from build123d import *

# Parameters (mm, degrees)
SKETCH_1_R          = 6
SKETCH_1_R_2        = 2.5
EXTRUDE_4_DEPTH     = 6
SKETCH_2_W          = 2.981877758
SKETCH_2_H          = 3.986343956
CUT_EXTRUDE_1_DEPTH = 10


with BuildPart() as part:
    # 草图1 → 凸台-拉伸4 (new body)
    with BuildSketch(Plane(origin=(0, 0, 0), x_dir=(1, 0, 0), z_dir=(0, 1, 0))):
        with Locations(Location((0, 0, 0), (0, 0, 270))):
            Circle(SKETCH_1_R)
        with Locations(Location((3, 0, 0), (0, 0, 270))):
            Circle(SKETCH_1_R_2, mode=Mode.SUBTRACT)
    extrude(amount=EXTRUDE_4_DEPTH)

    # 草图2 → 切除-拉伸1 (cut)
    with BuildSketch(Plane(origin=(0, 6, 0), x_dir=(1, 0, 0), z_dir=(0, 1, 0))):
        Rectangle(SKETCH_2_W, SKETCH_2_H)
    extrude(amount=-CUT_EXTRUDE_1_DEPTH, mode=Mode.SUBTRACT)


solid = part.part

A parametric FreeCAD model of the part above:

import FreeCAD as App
import Part
import Sketcher

doc = App.newDocument("Part")
body = doc.addObject("PartDesign::Body", "Body")

# Sketch on XZ plane
sketch1 = doc.addObject("Sketcher::SketchObject", "Sketch")
body.addObject(sketch1)
sketch1.AttachmentSupport = (doc.XZ_Plane, [""])
sketch1.MapMode = "FlatFace"
sketch1.addGeometry([
    Part.Circle(App.Vector(0, 0, 0), App.Vector(0, 0, 1), 6),
    Part.Circle(App.Vector(3, 0, 0), App.Vector(0, 0, 1), 2.5),
], False)
sketch1.addConstraint([
    Sketcher.Constraint("Coincident", 0, 3, -1, 1),
    Sketcher.Constraint("PointOnObject", 1, 3, -1),
    Sketcher.Constraint("Diameter", 0, 12.0),
    Sketcher.Constraint("Diameter", 1, 5.0),
    Sketcher.Constraint("DistanceX", -1, 1, 1, 3, 3.0),
])
pad1 = doc.addObject("PartDesign::Pad", "Pad")
body.addObject(pad1)
pad1.Profile = sketch1
pad1.Length = 6
pad1.Reversed = True

# Sketch on XZ plane
sketch2 = doc.addObject("Sketcher::SketchObject", "Sketch001")
body.addObject(sketch2)
sketch2.AttachmentSupport = (doc.XZ_Plane, [""])
sketch2.MapMode = "FlatFace"
sketch2.AttachmentOffset = App.Placement(App.Vector(0, 0, -6), App.Rotation())
sketch2.addGeometry([
    Part.LineSegment(App.Vector(-1.5, -2, 0), App.Vector(-1.5, 2, 0)),
    Part.LineSegment(App.Vector(-1.5, 2, 0), App.Vector(1.5, 2, 0)),
    Part.LineSegment(App.Vector(1.5, 2, 0), App.Vector(1.5, -2, 0)),
    Part.LineSegment(App.Vector(1.5, -2, 0), App.Vector(-1.5, -2, 0)),
], False)
sketch2.addConstraint([
    Sketcher.Constraint("Coincident", 0, 2, 1, 1),
    Sketcher.Constraint("Coincident", 1, 2, 2, 1),
    Sketcher.Constraint("Coincident", 2, 2, 3, 1),
    Sketcher.Constraint("Coincident", 3, 2, 0, 1),
    Sketcher.Constraint("Vertical", 0),
    Sketcher.Constraint("Horizontal", 1),
    Sketcher.Constraint("Vertical", 2),
    Sketcher.Constraint("Horizontal", 3),
    Sketcher.Constraint("Symmetric", 0, 2, 2, 2, -1, 1),
    Sketcher.Constraint("DistanceX", 1, 1, 1, 2, 2.981878),
    Sketcher.Constraint("DistanceY", 0, 1, 0, 2, 3.986344),
])
pocket1 = doc.addObject("PartDesign::Pocket", "Pocket")
body.addObject(pocket1)
pocket1.Profile = sketch2
pocket1.Length = 10
pocket1.Reversed = True

doc.recompute()
